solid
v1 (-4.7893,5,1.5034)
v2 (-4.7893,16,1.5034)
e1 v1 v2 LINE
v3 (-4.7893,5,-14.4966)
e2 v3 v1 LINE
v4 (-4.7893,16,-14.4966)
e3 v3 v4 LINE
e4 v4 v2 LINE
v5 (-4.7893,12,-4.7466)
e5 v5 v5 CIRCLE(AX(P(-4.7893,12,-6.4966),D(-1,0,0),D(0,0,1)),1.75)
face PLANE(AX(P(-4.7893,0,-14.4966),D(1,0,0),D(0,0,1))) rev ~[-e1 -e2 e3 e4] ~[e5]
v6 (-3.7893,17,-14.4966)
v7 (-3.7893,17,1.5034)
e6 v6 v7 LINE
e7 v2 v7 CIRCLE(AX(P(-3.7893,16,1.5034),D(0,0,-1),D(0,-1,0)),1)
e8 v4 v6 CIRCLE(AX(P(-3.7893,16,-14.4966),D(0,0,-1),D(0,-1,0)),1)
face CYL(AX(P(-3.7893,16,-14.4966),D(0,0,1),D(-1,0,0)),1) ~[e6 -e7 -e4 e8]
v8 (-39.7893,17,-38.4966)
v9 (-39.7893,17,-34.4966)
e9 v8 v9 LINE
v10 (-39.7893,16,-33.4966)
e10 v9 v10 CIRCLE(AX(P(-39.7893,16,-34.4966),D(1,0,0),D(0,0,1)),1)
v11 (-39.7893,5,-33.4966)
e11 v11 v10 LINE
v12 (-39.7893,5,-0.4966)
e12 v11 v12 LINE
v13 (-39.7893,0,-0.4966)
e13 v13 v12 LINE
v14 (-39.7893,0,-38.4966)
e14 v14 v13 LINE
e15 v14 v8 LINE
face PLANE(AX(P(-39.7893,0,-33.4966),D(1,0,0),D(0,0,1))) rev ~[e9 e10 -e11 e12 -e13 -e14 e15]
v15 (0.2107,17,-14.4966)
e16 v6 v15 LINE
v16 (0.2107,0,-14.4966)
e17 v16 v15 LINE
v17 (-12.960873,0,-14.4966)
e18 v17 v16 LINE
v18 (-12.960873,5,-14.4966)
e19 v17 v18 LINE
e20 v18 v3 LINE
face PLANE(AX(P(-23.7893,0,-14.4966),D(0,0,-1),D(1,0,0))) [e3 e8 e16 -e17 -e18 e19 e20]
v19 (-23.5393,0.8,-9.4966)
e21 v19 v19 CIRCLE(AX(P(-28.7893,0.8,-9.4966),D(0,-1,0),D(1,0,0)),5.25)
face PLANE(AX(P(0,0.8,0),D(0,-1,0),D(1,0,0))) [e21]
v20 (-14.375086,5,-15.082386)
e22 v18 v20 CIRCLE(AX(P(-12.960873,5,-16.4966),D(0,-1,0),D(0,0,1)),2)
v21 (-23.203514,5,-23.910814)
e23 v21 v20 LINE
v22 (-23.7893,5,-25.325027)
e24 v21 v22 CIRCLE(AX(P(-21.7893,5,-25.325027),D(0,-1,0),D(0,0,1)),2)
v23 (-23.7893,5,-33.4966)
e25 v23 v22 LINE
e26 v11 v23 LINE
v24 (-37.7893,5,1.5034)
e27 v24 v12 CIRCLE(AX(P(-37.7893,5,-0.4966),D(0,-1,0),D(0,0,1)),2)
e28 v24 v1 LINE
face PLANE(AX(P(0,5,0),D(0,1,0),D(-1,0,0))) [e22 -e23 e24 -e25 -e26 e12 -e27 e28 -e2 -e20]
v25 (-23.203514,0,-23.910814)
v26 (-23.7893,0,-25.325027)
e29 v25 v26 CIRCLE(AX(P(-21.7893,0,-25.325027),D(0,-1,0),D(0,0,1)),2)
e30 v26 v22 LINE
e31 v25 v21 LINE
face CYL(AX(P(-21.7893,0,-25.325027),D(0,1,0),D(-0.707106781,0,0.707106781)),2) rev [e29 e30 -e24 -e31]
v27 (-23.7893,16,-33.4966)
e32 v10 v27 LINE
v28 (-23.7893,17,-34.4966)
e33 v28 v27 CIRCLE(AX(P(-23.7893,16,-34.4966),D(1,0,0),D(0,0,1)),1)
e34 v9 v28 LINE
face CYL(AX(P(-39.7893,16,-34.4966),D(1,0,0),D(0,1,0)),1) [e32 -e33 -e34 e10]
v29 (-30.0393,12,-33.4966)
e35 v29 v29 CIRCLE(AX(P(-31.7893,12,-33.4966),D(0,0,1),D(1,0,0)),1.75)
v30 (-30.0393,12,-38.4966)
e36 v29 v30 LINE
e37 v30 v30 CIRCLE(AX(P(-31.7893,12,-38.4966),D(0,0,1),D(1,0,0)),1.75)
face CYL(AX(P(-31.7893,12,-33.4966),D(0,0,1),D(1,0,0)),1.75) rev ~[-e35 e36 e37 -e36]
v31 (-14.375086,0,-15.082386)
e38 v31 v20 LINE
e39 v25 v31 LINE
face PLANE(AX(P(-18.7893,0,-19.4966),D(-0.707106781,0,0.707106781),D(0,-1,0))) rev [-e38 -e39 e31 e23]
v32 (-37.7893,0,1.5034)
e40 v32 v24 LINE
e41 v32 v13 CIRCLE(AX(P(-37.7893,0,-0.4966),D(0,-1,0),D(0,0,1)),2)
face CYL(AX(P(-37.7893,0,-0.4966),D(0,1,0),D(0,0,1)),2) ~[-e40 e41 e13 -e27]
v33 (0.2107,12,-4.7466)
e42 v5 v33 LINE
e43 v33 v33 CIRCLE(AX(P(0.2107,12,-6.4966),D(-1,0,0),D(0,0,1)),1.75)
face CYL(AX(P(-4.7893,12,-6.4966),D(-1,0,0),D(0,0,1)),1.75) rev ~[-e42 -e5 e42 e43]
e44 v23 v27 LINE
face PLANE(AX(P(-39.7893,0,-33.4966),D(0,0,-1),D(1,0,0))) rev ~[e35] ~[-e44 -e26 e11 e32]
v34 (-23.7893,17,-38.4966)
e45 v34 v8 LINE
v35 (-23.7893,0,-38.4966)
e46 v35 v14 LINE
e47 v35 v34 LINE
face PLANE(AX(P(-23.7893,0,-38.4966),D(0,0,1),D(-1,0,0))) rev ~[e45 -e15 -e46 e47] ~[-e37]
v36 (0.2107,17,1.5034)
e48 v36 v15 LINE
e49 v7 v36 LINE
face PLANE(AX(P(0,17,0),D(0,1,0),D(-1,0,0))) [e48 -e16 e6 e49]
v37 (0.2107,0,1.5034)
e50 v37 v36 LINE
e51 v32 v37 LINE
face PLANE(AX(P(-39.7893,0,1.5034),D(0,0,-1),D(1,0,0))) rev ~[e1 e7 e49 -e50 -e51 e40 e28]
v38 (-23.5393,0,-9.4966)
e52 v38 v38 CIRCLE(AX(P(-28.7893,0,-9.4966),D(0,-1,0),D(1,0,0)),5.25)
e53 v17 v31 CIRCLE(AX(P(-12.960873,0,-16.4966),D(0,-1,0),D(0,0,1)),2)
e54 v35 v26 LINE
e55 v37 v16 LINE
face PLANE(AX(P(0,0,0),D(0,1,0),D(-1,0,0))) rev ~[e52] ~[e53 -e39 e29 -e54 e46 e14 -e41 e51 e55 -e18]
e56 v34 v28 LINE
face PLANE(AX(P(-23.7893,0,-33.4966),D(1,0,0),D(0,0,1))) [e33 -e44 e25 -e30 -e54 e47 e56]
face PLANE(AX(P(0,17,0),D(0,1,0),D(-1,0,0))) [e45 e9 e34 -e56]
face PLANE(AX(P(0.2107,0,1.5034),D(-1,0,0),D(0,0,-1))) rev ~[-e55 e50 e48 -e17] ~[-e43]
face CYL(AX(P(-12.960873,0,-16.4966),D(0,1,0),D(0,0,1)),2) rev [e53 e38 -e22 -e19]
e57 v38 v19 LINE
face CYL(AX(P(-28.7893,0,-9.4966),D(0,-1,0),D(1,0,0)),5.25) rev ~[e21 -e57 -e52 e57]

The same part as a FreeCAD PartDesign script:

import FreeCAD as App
import Part
import Sketcher


def edges_at(feature, points):
    """Names of the edges that pass closest to the given points."""
    edges = feature.Shape.Edges
    near = lambda p: min(range(len(edges)), key=lambda i: edges[i].distToShape(Part.Vertex(*p))[0])
    return sorted({f"Edge{near(p) + 1}" for p in points})


def add_polygon(sketch, points):
    """Adds a closed chain of lines whose ends are joined by coincident constraints."""
    first, n = sketch.GeometryCount, len(points)
    for a, b in zip(points, points[1:] + points[:1]):
        sketch.addGeometry(Part.LineSegment(App.Vector(*a, 0), App.Vector(*b, 0)), False)
    for i in range(n):
        sketch.addConstraint(Sketcher.Constraint("Coincident", first + i, 2, first + (i + 1) % n, 1))

doc = App.newDocument("Part")
params = doc.addObject("Spreadsheet::Sheet", "Params")
for row, (alias, value) in enumerate([
    ("sketch1_width", "16 mm"),
    ("sketch1_width2", "35 mm"),
    ("pad1_length", "5 mm"),
    ("sketch2_width", "5 mm"),
    ("sketch2_width2", "16 mm"),
    ("pad2_length", "17 mm"),
    ("chamfer_size", "10 mm"),
    ("fillet_radius", "2 mm"),
    ("sketch3_diameter", "3.5 mm"),
    ("pocket1_length", "20 mm"),
    ("sketch4_diameter", "3.5 mm"),
    ("pocket2_length", "20 mm"),
    ("fillet2_radius", "1 mm"),
    ("sketch5_diameter", "10.5 mm"),
    ("pocket3_length", "0.8 mm"),
], start=1):
    params.set(f"A{row}", alias)
    params.set(f"B{row}", "=" + value)
    params.setAlias(f"B{row}", alias)

body = doc.addObject("PartDesign::Body", "Body")

# Sketch on XZ plane
sketch1 = body.newObject("Sketcher::SketchObject", "Sketch")
sketch1.AttachmentSupport = (doc.getObject("XZ_Plane"), [""])
sketch1.MapMode = "FlatFace"
add_polygon(sketch1, [(-40, -33), (-40, 2), (-5, 2), (-5, -14), (-24, -14), (-24, -33)])  # lines 0-5
sketch1.addConstraint(Sketcher.Constraint("Vertical", 0))
sketch1.addConstraint(Sketcher.Constraint("Horizontal", 1))
sketch1.addConstraint(Sketcher.Constraint("Vertical", 2))
sketch1.addConstraint(Sketcher.Constraint("Horizontal", 3))
sketch1.addConstraint(Sketcher.Constraint("Vertical", 4))
sketch1.addConstraint(Sketcher.Constraint("Horizontal", 5))
sketch1.addConstraint(Sketcher.Constraint("Equal", 1, 0))
sketch1.addConstraint(Sketcher.Constraint("Equal", 5, 2))
sketch1.addConstraint(Sketcher.Constraint("DistanceX", 5, 2, 5, 1, 16.0))
sketch1.addConstraint(Sketcher.Constraint("DistanceX", 1, 1, 1, 2, 35.0))
sketch1.addConstraint(Sketcher.Constraint("DistanceX", 0, 2, -1, 1, 39.7893))
sketch1.addConstraint(Sketcher.Constraint("DistanceY", -1, 1, 0, 2, 1.5034))
sketch1.setExpression("Constraints[14]", "Params.sketch1_width")
sketch1.setExpression("Constraints[15]", "Params.sketch1_width2")
pad1 = body.newObject("PartDesign::Pad", "Pad")
pad1.Profile = sketch1
pad1.setExpression("Length", "Params.pad1_length")
pad1.Reversed = True

# Sketch on XZ plane
sketch2 = body.newObject("Sketcher::SketchObject", "Sketch001")
sketch2.AttachmentSupport = (doc.getObject("XZ_Plane"), [""])
sketch2.MapMode = "FlatFace"
add_polygon(sketch2, [(-5, -14), (-5, 2), (0, 2), (0, -14)])  # lines 0-3
add_polygon(sketch2, [(-40, -38), (-40, -33), (-24, -33), (-24, -38)])  # lines 4-7
sketch2.addConstraint(Sketcher.Constraint("Vertical", 0))
sketch2.addConstraint(Sketcher.Constraint("Horizontal", 1))
sketch2.addConstraint(Sketcher.Constraint("Vertical", 2))
sketch2.addConstraint(Sketcher.Constraint("Horizontal", 3))
sketch2.addConstraint(Sketcher.Constraint("Vertical", 4))
sketch2.addConstraint(Sketcher.Constraint("Horizontal", 5))
sketch2.addConstraint(Sketcher.Constraint("Vertical", 6))
sketch2.addConstraint(Sketcher.Constraint("Horizontal", 7))
sketch2.addConstraint(Sketcher.Constraint("Equal", 7, 0))
sketch2.addConstraint(Sketcher.Constraint("Equal", 3, 4))
sketch2.addConstraint(Sketcher.Constraint("DistanceX", 1, 1, 1, 2, 5.0))
sketch2.addConstraint(Sketcher.Constraint("DistanceX", 5, 1, 5, 2, 16.0))
sketch2.addConstraint(Sketcher.Constraint("DistanceX", 4, 2, 2, 2, 40.0))
sketch2.addConstraint(Sketcher.Constraint("DistanceY", 6, 2, 0, 2, 40.0))
sketch2.addConstraint(Sketcher.Constraint("DistanceX", 0, 2, -1, 1, 4.7893))
sketch2.addConstraint(Sketcher.Constraint("DistanceY", -1, 1, 0, 2, 1.5034))
sketch2.setExpression("Constraints[18]", "Params.sketch2_width")
sketch2.setExpression("Constraints[19]", "Params.sketch2_width2")
pad2 = body.newObject("PartDesign::Pad", "Pad001")
pad2.Profile = sketch2
pad2.setExpression("Length", "Params.pad2_length")
pad2.Reversed = True
doc.recompute()

chamfer = body.newObject("PartDesign::Chamfer", "Chamfer")
chamfer.Base = (pad2, edges_at(pad2, [(-23.789, 2.5, -14.497)]))
chamfer.setExpression("Size", "Params.chamfer_size")
doc.recompute()

fillet = body.newObject("PartDesign::Fillet", "Fillet")
fillet.Base = (chamfer, edges_at(chamfer, [(-39.789, 2.5, 1.503), (-13.789, 2.5, -14.497), (-23.789, 2.5, -24.497)]))
fillet.setExpression("Radius", "Params.fillet_radius")

# Sketch on YZ plane
sketch3 = body.newObject("Sketcher::SketchObject", "Sketch002")
sketch3.AttachmentSupport = (doc.getObject("YZ_Plane"), [""])
sketch3.MapMode = "FlatFace"
sketch3.AttachmentOffset = App.Placement(App.Vector(0, 0, -4.7893), App.Rotation())
sketch3.addGeometry(Part.Circle(App.Vector(12, -6.5, 0), App.Vector(0, 0, 1), 1.8), False)
sketch3.addConstraint(Sketcher.Constraint("Diameter", 0, 3.5))
sketch3.addConstraint(Sketcher.Constraint("DistanceX", -1, 1, 0, 3, 12.0))
sketch3.addConstraint(Sketcher.Constraint("DistanceY", 0, 3, -1, 1, 6.4966))
sketch3.setExpression("Constraints[0]", "Params.sketch3_diameter")
pocket1 = body.newObject("PartDesign::Pocket", "Pocket")
pocket1.Profile = sketch3
pocket1.setExpression("Length", "Params.pocket1_length")
pocket1.Reversed = True

# Sketch on XY plane
sketch4 = body.newObject("Sketcher::SketchObject", "Sketch003")
sketch4.AttachmentSupport = (doc.getObject("XY_Plane"), [""])
sketch4.MapMode = "FlatFace"
sketch4.AttachmentOffset = App.Placement(App.Vector(0, 0, -33.4966), App.Rotation())
sketch4.addGeometry(Part.Circle(App.Vector(-31.8, 12, 0), App.Vector(0, 0, 1), 1.8), False)
sketch4.addConstraint(Sketcher.Constraint("Diameter", 0, 3.5))
sketch4.addConstraint(Sketcher.Constraint("DistanceY", -1, 1, 0, 3, 12.0))
sketch4.addConstraint(Sketcher.Constraint("DistanceX", 0, 3, -1, 1, 31.7893))
sketch4.setExpression("Constraints[0]", "Params.sketch4_diameter")
pocket2 = body.newObject("PartDesign::Pocket", "Pocket001")
pocket2.Profile = sketch4
pocket2.setExpression("Length", "Params.pocket2_length")
doc.recompute()

fillet2 = body.newObject("PartDesign::Fillet", "Fillet001")
fillet2.Base = (pocket2, edges_at(pocket2, [(-31.789, 17, -33.497), (-4.789, 17, -6.497)]))
fillet2.setExpression("Radius", "Params.fillet2_radius")

# Sketch on XZ plane
sketch5 = body.newObject("Sketcher::SketchObject", "Sketch004")
sketch5.AttachmentSupport = (doc.getObject("XZ_Plane"), [""])
sketch5.MapMode = "FlatFace"
sketch5.addGeometry(Part.Circle(App.Vector(-29, -9, 0), App.Vector(0, 0, 1), 5), False)
sketch5.addConstraint(Sketcher.Constraint("Diameter", 0, 10.5))
sketch5.addConstraint(Sketcher.Constraint("DistanceX", 0, 3, -1, 1, 28.7893))
sketch5.addConstraint(Sketcher.Constraint("DistanceY", 0, 3, -1, 1, 9.4966))
sketch5.setExpression("Constraints[0]", "Params.sketch5_diameter")
pocket3 = body.newObject("PartDesign::Pocket", "Pocket002")
pocket3.Profile = sketch5
pocket3.setExpression("Length", "Params.pocket3_length")

doc.recompute()
